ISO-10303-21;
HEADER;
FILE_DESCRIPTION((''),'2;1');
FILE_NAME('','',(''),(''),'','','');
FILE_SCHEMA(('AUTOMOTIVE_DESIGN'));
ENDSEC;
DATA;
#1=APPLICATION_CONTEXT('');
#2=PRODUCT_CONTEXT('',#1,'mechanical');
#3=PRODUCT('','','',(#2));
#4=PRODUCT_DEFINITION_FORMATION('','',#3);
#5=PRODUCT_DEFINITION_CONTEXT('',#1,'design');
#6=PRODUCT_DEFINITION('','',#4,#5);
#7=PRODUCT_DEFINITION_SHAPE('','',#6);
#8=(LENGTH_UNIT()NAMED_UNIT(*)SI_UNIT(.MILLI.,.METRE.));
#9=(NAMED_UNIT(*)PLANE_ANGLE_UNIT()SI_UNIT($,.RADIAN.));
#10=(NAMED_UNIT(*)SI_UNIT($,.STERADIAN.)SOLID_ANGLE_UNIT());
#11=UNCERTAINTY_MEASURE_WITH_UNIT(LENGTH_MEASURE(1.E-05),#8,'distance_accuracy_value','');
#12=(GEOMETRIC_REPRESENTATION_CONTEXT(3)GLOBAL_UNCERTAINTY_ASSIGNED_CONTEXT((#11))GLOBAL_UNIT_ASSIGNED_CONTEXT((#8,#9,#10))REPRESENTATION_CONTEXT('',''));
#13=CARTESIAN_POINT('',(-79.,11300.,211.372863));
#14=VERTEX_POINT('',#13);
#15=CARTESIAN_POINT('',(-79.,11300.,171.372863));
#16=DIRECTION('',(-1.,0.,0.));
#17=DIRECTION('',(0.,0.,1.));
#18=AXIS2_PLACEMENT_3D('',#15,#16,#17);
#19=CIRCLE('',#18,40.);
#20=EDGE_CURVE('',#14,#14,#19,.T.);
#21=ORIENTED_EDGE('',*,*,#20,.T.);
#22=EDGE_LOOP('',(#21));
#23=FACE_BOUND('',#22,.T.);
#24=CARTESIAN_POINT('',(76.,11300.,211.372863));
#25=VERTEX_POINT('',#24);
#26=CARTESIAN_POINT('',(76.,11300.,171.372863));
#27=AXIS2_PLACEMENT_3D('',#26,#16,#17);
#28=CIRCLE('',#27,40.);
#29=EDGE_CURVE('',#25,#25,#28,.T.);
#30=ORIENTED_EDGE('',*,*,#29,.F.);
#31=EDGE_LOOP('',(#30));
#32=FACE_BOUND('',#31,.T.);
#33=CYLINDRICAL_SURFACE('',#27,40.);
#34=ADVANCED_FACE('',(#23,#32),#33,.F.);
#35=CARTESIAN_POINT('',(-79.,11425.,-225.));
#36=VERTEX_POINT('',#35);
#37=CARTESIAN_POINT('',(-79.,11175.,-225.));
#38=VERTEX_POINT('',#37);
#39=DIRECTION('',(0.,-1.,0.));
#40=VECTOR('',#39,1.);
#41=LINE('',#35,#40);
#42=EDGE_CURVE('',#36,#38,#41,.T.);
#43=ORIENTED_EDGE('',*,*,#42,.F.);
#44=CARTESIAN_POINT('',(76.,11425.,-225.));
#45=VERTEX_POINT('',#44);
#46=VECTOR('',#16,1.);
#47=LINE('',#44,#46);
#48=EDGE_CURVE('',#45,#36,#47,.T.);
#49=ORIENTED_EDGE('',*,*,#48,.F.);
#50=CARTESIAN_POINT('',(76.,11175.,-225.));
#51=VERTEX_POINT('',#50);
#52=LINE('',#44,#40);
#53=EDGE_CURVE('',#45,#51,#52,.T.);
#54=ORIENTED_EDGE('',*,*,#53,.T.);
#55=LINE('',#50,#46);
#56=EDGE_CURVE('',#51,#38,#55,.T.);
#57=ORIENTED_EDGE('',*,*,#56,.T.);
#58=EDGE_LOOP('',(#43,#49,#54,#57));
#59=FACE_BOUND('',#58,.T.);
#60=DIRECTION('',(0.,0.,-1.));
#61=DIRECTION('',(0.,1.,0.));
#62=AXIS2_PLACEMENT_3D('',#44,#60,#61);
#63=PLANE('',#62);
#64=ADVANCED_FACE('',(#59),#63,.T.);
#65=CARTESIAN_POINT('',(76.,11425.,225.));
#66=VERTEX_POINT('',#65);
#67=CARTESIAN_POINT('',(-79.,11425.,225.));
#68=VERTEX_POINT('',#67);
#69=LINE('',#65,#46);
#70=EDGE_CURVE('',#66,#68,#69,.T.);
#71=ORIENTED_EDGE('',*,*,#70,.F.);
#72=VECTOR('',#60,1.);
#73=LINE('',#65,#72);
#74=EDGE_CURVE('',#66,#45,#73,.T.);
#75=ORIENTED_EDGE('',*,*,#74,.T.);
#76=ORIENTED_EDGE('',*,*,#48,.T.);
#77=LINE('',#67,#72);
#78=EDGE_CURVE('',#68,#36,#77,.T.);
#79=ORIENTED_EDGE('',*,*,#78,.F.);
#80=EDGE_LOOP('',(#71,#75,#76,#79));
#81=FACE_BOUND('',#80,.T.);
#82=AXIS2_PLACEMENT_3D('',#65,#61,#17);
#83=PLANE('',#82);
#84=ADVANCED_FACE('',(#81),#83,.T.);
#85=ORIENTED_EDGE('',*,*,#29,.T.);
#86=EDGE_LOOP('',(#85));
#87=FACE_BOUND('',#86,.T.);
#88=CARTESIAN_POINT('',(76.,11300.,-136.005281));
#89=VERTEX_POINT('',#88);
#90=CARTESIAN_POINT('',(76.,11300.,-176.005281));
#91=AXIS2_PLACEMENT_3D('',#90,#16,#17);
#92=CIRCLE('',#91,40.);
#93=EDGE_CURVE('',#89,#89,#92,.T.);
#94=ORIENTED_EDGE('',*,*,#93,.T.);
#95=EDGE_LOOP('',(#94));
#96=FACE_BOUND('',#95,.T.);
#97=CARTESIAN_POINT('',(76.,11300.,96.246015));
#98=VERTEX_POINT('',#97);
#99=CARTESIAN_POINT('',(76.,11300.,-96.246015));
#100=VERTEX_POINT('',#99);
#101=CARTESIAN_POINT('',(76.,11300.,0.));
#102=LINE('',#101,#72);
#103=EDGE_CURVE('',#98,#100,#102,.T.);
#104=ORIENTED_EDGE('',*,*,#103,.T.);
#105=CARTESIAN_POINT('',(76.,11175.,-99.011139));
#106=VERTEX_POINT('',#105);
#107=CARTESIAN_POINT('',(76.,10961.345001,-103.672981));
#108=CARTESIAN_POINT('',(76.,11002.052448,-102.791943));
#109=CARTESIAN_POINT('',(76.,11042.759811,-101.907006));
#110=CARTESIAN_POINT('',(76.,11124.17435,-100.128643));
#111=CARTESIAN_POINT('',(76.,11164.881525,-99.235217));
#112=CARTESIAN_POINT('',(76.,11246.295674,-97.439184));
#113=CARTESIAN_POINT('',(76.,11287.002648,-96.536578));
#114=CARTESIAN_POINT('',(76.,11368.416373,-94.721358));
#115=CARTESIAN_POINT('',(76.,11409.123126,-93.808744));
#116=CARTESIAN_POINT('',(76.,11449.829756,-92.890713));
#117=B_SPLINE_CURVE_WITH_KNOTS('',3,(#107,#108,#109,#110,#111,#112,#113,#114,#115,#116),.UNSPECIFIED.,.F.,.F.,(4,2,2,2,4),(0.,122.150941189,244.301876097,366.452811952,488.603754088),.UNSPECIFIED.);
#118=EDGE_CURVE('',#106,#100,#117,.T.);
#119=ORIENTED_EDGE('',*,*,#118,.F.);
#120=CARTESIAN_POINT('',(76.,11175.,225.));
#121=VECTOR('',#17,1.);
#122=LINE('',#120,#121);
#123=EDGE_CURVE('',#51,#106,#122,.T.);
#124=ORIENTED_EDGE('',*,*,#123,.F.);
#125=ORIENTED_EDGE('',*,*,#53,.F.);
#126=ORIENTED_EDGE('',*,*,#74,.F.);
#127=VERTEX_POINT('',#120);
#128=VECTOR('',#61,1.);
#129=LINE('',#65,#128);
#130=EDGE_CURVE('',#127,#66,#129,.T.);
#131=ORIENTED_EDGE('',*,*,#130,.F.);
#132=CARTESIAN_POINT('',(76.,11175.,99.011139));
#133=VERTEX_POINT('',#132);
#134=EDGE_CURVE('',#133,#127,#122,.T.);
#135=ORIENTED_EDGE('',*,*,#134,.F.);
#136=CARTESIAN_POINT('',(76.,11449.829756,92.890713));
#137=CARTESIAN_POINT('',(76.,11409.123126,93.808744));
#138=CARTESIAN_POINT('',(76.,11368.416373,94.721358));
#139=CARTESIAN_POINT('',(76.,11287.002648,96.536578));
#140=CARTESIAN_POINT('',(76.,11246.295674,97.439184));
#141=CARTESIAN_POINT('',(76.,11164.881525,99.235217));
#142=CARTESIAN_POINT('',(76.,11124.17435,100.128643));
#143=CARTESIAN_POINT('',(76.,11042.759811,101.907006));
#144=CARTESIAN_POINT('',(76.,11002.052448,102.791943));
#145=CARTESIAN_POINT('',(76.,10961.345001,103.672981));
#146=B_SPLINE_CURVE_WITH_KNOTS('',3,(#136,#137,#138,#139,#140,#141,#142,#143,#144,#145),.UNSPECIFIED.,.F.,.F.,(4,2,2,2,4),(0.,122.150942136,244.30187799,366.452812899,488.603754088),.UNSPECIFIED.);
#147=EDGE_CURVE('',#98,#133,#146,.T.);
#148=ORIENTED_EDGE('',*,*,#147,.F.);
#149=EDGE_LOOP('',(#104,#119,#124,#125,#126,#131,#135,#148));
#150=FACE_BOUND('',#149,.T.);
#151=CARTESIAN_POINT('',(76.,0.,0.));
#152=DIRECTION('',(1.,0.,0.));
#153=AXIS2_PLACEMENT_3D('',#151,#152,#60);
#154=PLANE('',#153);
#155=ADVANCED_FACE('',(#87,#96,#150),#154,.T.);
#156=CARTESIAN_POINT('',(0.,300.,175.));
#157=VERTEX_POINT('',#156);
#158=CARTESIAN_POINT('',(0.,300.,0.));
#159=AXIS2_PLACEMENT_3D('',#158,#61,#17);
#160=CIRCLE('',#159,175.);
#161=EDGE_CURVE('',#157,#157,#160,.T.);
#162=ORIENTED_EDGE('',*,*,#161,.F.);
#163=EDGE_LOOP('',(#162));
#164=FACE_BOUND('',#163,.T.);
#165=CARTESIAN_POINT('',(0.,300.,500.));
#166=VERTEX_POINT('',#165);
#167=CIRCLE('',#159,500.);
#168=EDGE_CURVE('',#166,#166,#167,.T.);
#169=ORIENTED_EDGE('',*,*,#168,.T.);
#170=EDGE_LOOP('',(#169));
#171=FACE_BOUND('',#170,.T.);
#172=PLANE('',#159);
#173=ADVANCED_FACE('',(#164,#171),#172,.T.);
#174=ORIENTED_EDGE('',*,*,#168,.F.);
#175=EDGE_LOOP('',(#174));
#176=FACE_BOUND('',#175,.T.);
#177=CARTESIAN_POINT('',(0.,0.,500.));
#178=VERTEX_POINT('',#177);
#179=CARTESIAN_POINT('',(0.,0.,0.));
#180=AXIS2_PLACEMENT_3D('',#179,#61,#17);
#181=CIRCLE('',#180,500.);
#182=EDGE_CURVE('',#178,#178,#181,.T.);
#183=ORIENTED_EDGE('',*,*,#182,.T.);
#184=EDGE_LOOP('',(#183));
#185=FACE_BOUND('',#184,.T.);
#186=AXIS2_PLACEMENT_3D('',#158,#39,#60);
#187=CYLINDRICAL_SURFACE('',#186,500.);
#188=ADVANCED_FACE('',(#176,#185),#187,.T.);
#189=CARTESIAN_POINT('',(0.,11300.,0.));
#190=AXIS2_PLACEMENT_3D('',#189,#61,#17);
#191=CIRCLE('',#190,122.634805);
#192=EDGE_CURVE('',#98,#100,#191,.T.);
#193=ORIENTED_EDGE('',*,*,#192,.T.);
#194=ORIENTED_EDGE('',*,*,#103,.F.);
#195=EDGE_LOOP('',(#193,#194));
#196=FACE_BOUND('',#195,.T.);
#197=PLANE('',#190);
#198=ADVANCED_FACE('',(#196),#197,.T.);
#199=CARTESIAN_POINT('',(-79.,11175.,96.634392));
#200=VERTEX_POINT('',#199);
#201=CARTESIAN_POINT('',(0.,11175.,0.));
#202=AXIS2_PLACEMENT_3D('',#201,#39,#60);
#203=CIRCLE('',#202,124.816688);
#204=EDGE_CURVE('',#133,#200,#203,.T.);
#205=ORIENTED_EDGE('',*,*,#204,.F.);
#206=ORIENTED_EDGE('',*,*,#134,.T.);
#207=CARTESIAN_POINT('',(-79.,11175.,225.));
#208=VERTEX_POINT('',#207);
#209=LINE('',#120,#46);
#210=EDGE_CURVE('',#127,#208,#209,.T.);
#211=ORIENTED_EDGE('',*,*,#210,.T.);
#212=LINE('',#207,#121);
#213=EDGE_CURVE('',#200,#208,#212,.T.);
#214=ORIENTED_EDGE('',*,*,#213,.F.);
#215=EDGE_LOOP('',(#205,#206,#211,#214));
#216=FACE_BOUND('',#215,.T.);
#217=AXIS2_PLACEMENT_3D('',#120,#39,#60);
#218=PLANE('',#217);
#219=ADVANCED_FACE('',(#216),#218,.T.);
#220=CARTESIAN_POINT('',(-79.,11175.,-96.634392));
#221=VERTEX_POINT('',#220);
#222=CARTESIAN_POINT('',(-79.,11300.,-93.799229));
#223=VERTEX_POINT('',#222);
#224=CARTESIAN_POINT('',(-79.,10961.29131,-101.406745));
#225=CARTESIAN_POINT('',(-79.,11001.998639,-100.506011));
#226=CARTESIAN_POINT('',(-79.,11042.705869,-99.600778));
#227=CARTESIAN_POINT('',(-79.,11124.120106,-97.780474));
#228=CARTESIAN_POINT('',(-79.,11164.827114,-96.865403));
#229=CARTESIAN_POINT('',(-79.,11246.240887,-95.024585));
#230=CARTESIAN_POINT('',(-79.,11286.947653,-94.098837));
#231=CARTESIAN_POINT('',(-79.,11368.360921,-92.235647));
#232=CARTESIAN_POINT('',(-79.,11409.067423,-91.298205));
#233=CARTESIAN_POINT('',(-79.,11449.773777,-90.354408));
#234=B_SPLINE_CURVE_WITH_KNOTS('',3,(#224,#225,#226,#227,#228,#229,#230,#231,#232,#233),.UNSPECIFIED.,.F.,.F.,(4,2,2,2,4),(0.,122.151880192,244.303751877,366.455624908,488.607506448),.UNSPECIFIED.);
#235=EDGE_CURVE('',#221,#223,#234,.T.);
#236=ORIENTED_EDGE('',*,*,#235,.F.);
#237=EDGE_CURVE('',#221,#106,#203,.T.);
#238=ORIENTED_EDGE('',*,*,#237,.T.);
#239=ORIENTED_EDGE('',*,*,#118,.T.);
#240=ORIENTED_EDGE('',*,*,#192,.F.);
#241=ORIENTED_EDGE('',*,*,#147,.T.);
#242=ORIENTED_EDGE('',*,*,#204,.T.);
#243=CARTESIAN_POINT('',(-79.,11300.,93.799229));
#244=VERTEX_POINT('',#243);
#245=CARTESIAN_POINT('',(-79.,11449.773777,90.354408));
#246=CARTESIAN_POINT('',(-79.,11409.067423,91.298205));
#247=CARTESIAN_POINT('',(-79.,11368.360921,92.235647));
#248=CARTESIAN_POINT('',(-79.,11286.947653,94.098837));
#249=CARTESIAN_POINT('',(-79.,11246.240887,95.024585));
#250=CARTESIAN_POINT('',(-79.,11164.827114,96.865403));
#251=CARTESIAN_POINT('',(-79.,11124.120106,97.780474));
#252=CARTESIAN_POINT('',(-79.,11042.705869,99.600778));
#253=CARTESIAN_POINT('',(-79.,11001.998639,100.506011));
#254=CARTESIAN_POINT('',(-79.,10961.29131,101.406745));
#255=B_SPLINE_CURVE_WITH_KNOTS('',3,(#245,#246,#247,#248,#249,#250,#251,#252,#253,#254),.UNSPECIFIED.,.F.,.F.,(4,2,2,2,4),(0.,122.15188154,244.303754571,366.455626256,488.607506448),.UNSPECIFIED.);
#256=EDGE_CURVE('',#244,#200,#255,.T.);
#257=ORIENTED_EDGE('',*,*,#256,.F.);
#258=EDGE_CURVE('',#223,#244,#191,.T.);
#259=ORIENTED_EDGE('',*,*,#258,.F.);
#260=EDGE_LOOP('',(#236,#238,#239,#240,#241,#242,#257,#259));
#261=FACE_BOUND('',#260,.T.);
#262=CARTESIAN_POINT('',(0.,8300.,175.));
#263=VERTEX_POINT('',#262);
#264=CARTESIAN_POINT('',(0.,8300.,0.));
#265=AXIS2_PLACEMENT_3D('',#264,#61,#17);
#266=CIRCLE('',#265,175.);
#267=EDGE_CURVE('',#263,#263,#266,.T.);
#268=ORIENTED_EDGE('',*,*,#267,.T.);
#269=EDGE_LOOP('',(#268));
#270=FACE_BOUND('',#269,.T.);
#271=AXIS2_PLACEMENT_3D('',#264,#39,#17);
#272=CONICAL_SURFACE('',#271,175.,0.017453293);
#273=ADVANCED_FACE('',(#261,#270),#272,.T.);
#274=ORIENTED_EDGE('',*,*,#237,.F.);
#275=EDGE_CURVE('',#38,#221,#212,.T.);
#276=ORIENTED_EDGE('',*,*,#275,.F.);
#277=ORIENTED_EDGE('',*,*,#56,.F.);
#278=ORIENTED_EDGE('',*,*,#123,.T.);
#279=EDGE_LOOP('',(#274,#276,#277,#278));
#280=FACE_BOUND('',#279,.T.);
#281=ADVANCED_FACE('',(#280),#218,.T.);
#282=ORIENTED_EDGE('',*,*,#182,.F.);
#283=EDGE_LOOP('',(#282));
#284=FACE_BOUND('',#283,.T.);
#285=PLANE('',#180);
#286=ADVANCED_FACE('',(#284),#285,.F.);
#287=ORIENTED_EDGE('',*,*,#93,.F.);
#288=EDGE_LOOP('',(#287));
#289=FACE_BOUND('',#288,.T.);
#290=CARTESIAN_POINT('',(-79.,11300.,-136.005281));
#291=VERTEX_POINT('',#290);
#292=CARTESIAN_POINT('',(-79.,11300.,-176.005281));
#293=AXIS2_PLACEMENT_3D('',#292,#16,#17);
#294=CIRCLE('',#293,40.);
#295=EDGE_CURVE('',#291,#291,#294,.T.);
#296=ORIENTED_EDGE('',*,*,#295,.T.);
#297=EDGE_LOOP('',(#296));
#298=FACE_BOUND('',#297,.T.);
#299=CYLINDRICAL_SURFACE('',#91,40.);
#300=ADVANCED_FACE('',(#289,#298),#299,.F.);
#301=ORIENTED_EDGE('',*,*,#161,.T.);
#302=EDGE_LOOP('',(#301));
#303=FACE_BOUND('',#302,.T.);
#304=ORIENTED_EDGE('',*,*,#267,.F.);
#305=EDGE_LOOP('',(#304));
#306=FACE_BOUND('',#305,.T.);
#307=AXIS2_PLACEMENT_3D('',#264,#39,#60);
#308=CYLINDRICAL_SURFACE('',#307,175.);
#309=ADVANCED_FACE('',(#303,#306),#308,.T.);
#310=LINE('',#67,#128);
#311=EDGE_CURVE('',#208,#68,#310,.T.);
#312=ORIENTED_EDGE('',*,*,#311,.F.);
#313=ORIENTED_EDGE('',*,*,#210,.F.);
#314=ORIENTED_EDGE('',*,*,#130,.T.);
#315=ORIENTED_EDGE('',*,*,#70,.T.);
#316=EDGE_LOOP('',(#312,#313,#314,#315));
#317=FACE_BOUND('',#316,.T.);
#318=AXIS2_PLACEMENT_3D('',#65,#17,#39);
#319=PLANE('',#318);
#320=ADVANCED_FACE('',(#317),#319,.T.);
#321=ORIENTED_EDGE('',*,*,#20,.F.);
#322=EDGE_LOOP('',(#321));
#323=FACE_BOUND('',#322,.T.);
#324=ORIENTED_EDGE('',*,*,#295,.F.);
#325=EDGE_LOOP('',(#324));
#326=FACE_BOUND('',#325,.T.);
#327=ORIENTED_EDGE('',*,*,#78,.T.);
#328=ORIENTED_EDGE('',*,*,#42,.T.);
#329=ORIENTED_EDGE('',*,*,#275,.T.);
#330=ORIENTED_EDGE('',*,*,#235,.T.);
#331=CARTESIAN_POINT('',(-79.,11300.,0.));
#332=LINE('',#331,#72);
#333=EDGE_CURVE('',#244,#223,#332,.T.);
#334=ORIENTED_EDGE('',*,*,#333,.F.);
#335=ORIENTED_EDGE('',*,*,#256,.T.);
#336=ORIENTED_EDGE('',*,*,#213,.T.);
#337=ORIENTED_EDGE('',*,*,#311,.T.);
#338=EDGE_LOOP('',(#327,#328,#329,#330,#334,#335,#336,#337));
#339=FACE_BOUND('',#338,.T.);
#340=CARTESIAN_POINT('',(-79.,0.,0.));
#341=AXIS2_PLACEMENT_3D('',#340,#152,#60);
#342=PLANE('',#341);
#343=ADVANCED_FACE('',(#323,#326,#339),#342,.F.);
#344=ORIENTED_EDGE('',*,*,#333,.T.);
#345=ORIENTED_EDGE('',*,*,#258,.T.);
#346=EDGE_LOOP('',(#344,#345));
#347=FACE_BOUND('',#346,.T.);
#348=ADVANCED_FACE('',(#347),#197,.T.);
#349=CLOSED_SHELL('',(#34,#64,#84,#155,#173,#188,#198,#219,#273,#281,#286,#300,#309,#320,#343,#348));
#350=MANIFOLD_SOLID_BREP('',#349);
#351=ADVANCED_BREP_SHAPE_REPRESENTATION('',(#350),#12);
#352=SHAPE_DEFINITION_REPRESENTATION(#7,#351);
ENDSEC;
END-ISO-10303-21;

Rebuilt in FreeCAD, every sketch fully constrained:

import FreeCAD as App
import Part
import Sketcher
Q = App.Units.Quantity


def add_polygon(sketch, points):
    """Adds a closed chain of lines whose ends are joined by coincident constraints."""
    first, n = sketch.GeometryCount, len(points)
    for a, b in zip(points, points[1:] + points[:1]):
        sketch.addGeometry(Part.LineSegment(App.Vector(*a, 0), App.Vector(*b, 0)), False)
    for i in range(n):
        sketch.addConstraint(Sketcher.Constraint("Coincident", first + i, 2, first + (i + 1) % n, 1))

doc = App.newDocument("Part")
body = doc.addObject("PartDesign::Body", "Body")

# Sketch on XZ plane
sketch1 = body.newObject("Sketcher::SketchObject", "Sketch")
sketch1.AttachmentSupport = (doc.getObject("XZ_Plane"), [""])
sketch1.MapMode = "FlatFace"
sketch1.addGeometry(Part.Circle(App.Vector(0, 0, 0), App.Vector(0, 0, 1), 500), False)
sketch1.addConstraint(Sketcher.Constraint("Coincident", 0, 3, -1, 1))
sketch1.addConstraint(Sketcher.Constraint("Diameter", 0, Q("1000 mm")))
pad1 = body.newObject("PartDesign::Pad", "Pad")
pad1.Profile = sketch1
pad1.Length = 300
pad1.Reversed = True

# Sketch on XZ plane
sketch2 = body.newObject("Sketcher::SketchObject", "Sketch001")
sketch2.AttachmentSupport = (doc.getObject("XZ_Plane"), [""])
sketch2.MapMode = "FlatFace"
sketch2.AttachmentOffset = App.Placement(App.Vector(0, 0, -300), App.Rotation())
sketch2.addGeometry(Part.Circle(App.Vector(0, 0, 0), App.Vector(0, 0, 1), 175), False)
sketch2.addConstraint(Sketcher.Constraint("Coincident", 0, 3, -1, 1))
sketch2.addConstraint(Sketcher.Constraint("Diameter", 0, Q("350 mm")))
pad2 = body.newObject("PartDesign::Pad", "Pad001")
pad2.Profile = sketch2
pad2.Length = 8000
pad2.Reversed = True

# Sketch on XZ plane
sketch3 = body.newObject("Sketcher::SketchObject", "Sketch002")
sketch3.AttachmentSupport = (doc.getObject("XZ_Plane"), [""])
sketch3.MapMode = "FlatFace"
sketch3.AttachmentOffset = App.Placement(App.Vector(0, 0, -8300), App.Rotation())
sketch3.addGeometry(Part.Circle(App.Vector(0, 0, 0), App.Vector(0, 0, 1), 175), False)
sketch3.addConstraint(Sketcher.Constraint("Coincident", 0, 3, -1, 1))
sketch3.addConstraint(Sketcher.Constraint("Diameter", 0, Q("350 mm")))
pad3 = body.newObject("PartDesign::Pad", "Pad002")
pad3.Profile = sketch3
pad3.Length = 3000
pad3.Reversed = True
pad3.TaperAngle = -1

# Sketch on YZ plane
sketch4 = body.newObject("Sketcher::SketchObject", "Sketch003")
sketch4.AttachmentSupport = (doc.getObject("YZ_Plane"), [""])
sketch4.MapMode = "FlatFace"
add_polygon(sketch4, [(11425, -225), (11175, -225), (11175, 225), (11425, 225)])  # lines 0-3
sketch4.addGeometry(Part.Circle(App.Vector(11300, -176.005281, 0), App.Vector(0, 0, 1), 40), False)  # 4
sketch4.addGeometry(Part.Circle(App.Vector(11300, 171.372863, 0), App.Vector(0, 0, 1), 40), False)  # 5
sketch4.addConstraint(Sketcher.Constraint("Horizontal", 0))
sketch4.addConstraint(Sketcher.Constraint("Vertical", 1))
sketch4.addConstraint(Sketcher.Constraint("Horizontal", 2))
sketch4.addConstraint(Sketcher.Constraint("Vertical", 3))
sketch4.addConstraint(Sketcher.Constraint("Equal", 4, 5))
sketch4.addConstraint(Sketcher.Constraint("Vertical", 4, 3, 5, 3))
sketch4.addConstraint(Sketcher.Constraint("Diameter", 4, Q("80 mm")))
sketch4.addConstraint(Sketcher.Constraint("DistanceX", 0, 2, 0, 1, Q("250 mm")))
sketch4.addConstraint(Sketcher.Constraint("DistanceY", 1, 1, 1, 2, Q("450 mm")))
sketch4.addConstraint(Sketcher.Constraint("DistanceX", -1, 1, 4, 3, Q("11300 mm")))
sketch4.addConstraint(Sketcher.Constraint("DistanceX", -1, 1, 0, 2, Q("11175 mm")))
sketch4.addConstraint(Sketcher.Constraint("DistanceY", 0, 2, -1, 1, Q("225 mm")))
sketch4.addConstraint(Sketcher.Constraint("DistanceY", 4, 3, -1, 1, Q("176.005281 mm")))
sketch4.addConstraint(Sketcher.Constraint("DistanceY", -1, 1, 5, 3, Q("171.372863 mm")))
pad4 = body.newObject("PartDesign::Pad", "Pad003")
pad4.Profile = sketch4
pad4.Type = "TwoLengths"
pad4.Length = 79
pad4.Length2 = 76
pad4.Reversed = True

doc.recompute()
